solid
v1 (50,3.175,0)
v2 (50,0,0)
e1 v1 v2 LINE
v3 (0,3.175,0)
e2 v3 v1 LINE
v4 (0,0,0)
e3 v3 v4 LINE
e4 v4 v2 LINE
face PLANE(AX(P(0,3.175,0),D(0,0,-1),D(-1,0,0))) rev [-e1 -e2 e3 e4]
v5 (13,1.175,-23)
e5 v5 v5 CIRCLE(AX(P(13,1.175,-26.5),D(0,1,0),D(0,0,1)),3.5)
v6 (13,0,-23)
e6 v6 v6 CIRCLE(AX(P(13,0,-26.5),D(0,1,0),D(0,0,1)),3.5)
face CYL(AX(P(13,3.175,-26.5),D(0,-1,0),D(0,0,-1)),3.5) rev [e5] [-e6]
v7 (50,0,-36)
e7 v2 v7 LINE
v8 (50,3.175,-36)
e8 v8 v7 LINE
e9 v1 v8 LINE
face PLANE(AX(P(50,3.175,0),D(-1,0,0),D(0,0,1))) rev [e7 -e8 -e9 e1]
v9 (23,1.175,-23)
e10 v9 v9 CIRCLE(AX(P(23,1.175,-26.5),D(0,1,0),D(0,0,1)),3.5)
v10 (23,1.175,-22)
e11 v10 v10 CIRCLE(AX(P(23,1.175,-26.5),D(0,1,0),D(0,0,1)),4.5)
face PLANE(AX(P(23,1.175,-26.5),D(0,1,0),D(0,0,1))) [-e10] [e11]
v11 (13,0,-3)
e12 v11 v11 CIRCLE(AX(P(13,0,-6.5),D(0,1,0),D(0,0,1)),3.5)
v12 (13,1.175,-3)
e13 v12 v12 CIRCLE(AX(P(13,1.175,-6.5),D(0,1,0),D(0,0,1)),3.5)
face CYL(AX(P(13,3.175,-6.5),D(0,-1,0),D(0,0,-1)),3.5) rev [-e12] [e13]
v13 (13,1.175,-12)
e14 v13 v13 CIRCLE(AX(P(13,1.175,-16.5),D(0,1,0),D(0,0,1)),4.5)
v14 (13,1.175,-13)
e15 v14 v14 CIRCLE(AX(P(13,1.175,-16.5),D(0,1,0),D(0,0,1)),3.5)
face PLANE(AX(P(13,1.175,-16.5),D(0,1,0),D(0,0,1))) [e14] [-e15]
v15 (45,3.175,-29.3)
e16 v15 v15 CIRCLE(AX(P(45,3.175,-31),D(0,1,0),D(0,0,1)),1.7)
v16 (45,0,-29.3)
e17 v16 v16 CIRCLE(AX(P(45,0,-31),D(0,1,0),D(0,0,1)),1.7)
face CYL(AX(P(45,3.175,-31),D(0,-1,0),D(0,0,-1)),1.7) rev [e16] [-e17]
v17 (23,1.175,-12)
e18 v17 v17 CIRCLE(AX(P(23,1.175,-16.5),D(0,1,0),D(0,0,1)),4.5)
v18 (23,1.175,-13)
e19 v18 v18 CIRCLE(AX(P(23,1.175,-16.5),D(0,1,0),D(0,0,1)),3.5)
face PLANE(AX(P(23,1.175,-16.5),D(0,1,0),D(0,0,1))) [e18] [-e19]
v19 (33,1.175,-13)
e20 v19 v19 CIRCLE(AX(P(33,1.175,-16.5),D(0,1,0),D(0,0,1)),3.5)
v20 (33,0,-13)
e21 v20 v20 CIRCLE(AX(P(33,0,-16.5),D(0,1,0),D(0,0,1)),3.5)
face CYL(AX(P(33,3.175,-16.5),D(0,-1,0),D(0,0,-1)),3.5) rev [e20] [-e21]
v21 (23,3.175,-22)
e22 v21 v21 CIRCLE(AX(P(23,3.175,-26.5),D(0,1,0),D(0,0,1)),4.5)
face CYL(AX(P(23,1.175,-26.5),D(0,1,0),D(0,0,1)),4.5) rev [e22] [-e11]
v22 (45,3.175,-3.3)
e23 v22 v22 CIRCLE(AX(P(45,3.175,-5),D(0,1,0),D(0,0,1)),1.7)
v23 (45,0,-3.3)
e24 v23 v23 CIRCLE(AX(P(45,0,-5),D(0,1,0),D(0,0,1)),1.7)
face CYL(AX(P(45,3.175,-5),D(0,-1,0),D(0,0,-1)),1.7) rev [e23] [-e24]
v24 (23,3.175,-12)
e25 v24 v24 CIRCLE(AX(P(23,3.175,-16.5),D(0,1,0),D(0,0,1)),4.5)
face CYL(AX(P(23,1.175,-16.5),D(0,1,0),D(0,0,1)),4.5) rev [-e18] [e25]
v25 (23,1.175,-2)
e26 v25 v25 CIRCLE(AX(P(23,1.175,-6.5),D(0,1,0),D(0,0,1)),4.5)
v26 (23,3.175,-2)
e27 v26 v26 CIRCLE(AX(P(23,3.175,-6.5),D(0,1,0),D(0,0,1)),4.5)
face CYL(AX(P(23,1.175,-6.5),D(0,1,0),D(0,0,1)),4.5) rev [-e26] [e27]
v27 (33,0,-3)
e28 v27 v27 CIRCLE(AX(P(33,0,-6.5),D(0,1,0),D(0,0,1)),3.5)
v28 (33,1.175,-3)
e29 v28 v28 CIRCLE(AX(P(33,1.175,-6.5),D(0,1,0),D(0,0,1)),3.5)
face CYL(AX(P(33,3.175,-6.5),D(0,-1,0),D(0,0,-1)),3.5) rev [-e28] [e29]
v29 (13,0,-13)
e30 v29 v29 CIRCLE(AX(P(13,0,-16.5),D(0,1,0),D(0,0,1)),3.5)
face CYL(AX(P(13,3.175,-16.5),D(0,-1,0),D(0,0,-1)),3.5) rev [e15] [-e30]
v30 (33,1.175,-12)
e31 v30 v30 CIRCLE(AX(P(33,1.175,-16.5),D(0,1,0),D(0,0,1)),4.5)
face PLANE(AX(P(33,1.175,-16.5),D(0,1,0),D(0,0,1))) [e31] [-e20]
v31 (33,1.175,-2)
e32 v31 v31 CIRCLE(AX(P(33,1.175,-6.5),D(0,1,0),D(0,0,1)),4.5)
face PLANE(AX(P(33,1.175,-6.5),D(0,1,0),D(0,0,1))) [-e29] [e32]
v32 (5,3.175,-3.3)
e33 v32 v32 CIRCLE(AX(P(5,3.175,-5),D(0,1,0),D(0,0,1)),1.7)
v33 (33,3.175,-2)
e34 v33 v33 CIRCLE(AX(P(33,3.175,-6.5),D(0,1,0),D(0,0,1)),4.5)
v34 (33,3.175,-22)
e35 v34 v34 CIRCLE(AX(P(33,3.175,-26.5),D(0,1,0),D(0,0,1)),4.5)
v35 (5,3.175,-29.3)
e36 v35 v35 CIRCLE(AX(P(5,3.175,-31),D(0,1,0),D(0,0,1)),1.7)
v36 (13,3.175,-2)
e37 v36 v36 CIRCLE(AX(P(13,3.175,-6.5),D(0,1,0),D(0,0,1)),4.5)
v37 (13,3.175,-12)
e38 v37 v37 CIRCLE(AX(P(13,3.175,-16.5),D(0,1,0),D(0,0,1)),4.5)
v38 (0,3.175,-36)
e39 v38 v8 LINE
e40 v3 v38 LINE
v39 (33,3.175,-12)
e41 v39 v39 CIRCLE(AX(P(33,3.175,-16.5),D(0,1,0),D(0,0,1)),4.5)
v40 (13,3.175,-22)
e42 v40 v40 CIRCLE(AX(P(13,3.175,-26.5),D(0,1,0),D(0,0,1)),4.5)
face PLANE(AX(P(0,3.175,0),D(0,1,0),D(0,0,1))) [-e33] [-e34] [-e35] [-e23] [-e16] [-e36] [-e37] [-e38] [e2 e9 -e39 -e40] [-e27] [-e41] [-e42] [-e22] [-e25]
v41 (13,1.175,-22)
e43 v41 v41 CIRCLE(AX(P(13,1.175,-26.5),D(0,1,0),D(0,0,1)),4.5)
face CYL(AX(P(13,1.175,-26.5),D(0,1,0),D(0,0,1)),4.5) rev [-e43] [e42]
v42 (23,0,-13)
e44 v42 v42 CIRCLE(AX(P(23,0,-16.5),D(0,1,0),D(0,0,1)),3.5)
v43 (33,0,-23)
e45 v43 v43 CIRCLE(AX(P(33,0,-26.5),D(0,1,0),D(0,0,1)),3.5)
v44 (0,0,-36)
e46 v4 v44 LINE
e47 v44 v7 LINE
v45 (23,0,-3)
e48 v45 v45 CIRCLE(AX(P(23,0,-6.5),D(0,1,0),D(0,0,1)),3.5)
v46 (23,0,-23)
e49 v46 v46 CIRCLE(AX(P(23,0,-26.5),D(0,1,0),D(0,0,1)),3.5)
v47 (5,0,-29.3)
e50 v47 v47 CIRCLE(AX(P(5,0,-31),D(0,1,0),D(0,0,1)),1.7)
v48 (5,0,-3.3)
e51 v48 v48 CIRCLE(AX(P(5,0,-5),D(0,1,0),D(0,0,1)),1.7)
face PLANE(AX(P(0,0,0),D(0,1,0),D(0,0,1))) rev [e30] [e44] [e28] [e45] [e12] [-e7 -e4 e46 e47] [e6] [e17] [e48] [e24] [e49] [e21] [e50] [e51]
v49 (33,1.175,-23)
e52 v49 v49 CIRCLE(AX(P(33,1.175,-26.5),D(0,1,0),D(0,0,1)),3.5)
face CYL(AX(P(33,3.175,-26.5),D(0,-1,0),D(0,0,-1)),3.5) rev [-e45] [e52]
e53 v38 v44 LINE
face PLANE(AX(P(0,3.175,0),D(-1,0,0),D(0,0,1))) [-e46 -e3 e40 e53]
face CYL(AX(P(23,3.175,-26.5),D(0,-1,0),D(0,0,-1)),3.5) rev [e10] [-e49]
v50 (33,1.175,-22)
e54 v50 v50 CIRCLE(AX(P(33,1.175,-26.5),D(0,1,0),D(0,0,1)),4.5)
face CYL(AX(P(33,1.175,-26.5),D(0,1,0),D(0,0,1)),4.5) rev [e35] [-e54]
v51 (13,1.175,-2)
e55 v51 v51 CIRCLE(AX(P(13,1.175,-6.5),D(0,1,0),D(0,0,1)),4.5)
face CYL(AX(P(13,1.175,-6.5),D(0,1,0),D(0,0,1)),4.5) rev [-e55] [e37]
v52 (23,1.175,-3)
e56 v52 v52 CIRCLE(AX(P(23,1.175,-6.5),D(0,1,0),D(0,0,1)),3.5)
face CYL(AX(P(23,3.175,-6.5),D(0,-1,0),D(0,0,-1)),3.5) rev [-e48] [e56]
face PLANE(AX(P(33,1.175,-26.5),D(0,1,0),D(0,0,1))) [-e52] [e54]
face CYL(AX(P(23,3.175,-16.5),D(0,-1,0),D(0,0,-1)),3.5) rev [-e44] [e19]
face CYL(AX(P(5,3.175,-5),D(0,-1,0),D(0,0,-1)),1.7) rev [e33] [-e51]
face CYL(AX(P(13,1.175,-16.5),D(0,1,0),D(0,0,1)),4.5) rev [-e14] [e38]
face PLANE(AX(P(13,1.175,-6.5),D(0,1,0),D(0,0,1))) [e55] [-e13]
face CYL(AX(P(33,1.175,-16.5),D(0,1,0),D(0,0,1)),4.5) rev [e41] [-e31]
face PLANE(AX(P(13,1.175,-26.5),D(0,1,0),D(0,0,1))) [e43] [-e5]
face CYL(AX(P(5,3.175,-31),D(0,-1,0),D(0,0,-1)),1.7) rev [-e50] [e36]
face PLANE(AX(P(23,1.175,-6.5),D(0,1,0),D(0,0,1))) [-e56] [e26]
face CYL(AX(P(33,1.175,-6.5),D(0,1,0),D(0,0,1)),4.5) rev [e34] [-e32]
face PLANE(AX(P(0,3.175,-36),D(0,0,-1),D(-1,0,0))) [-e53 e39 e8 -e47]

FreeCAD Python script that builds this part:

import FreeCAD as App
import Part
import Sketcher
from FreeCAD import Vector

doc = App.newDocument("Part")
params = doc.addObject("Spreadsheet::Sheet", "Params")
for row, (alias, value) in enumerate([
    ("sketch1_diameter", "7 mm"),
    ("sketch1_diameter2", "3.4 mm"),
    ("sketch1_width", "50 mm"),
    ("sketch1_height", "36 mm"),
    ("pad1_length", "3.175 mm"),
    ("sketch2_diameter", "9 mm"),
    ("pocket1_length", "2 mm"),
], start=1):
    params.set(f"A{row}", alias)
    params.set(f"B{row}", "=" + value)
    params.setAlias(f"B{row}", alias)

body = doc.addObject("PartDesign::Body", "Body")

# Sketch on XZ plane
sketch1 = body.newObject("Sketcher::SketchObject", "Sketch")
sketch1.AttachmentSupport = (doc.getObject("XZ_Plane"), [""])
sketch1.MapMode = "FlatFace"
sketch1.addGeometry(Part.LineSegment(Vector(0, -36, 0), Vector(0, 0, 0)), False)
sketch1.addGeometry(Part.LineSegment(Vector(0, 0, 0), Vector(50, 0, 0)), False)
sketch1.addGeometry(Part.LineSegment(Vector(50, 0, 0), Vector(50, -36, 0)), False)
sketch1.addGeometry(Part.LineSegment(Vector(50, -36, 0), Vector(0, -36, 0)), False)
sketch1.addGeometry(Part.Circle(Vector(5, -5, 0), Vector(0, 0, 1), 1.7), False)
sketch1.addGeometry(Part.Circle(Vector(13, -6.5, 0), Vector(0, 0, 1), 3.5), False)
sketch1.addGeometry(Part.Circle(Vector(23, -6.5, 0), Vector(0, 0, 1), 3.5), False)
sketch1.addGeometry(Part.Circle(Vector(13, -16.5, 0), Vector(0, 0, 1), 3.5), False)
sketch1.addGeometry(Part.Circle(Vector(23, -16.5, 0), Vector(0, 0, 1), 3.5), False)
sketch1.addGeometry(Part.Circle(Vector(33, -6.5, 0), Vector(0, 0, 1), 3.5), False)
sketch1.addGeometry(Part.Circle(Vector(45, -5, 0), Vector(0, 0, 1), 1.7), False)
sketch1.addGeometry(Part.Circle(Vector(33, -16.5, 0), Vector(0, 0, 1), 3.5), False)
sketch1.addGeometry(Part.Circle(Vector(13, -26.5, 0), Vector(0, 0, 1), 3.5), False)
sketch1.addGeometry(Part.Circle(Vector(5, -31, 0), Vector(0, 0, 1), 1.7), False)
sketch1.addGeometry(Part.Circle(Vector(23, -26.5, 0), Vector(0, 0, 1), 3.5), False)
sketch1.addGeometry(Part.Circle(Vector(33, -26.5, 0), Vector(0, 0, 1), 3.5), False)
sketch1.addGeometry(Part.Circle(Vector(45, -31, 0), Vector(0, 0, 1), 1.7), False)
sketch1.addConstraint(Sketcher.Constraint("Coincident", 0, 2, 1, 1))
sketch1.addConstraint(Sketcher.Constraint("Coincident", 1, 2, 2, 1))
sketch1.addConstraint(Sketcher.Constraint("Coincident", 2, 2, 3, 1))
sketch1.addConstraint(Sketcher.Constraint("Coincident", 3, 2, 0, 1))
sketch1.addConstraint(Sketcher.Constraint("Vertical", 0))
sketch1.addConstraint(Sketcher.Constraint("Horizontal", 1))
sketch1.addConstraint(Sketcher.Constraint("Vertical", 2))
sketch1.addConstraint(Sketcher.Constraint("Horizontal", 3))
sketch1.addConstraint(Sketcher.Constraint("Coincident", 0, 2, -1, 1))
sketch1.addConstraint(Sketcher.Constraint("Equal", 5, 6))
sketch1.addConstraint(Sketcher.Constraint("Equal", 6, 7))
sketch1.addConstraint(Sketcher.Constraint("Equal", 7, 8))
sketch1.addConstraint(Sketcher.Constraint("Equal", 8, 9))
sketch1.addConstraint(Sketcher.Constraint("Equal", 4, 10))
sketch1.addConstraint(Sketcher.Constraint("Equal", 9, 11))
sketch1.addConstraint(Sketcher.Constraint("Equal", 11, 12))
sketch1.addConstraint(Sketcher.Constraint("Equal", 10, 13))
sketch1.addConstraint(Sketcher.Constraint("Equal", 12, 14))
sketch1.addConstraint(Sketcher.Constraint("Equal", 14, 15))
sketch1.addConstraint(Sketcher.Constraint("Equal", 13, 16))
sketch1.addConstraint(Sketcher.Constraint("Horizontal", 5, 3, 6, 3))
sketch1.addConstraint(Sketcher.Constraint("Horizontal", 7, 3, 8, 3))
sketch1.addConstraint(Sketcher.Constraint("Horizontal", 6, 3, 9, 3))
sketch1.addConstraint(Sketcher.Constraint("Horizontal", 4, 3, 10, 3))
sketch1.addConstraint(Sketcher.Constraint("Horizontal", 8, 3, 11, 3))
sketch1.addConstraint(Sketcher.Constraint("Horizontal", 12, 3, 14, 3))
sketch1.addConstraint(Sketcher.Constraint("Horizontal", 14, 3, 15, 3))
sketch1.addConstraint(Sketcher.Constraint("Horizontal", 13, 3, 16, 3))
sketch1.addConstraint(Sketcher.Constraint("Vertical", 5, 3, 7, 3))
sketch1.addConstraint(Sketcher.Constraint("Vertical", 6, 3, 8, 3))
sketch1.addConstraint(Sketcher.Constraint("Vertical", 9, 3, 11, 3))
sketch1.addConstraint(Sketcher.Constraint("Vertical", 7, 3, 12, 3))
sketch1.addConstraint(Sketcher.Constraint("Vertical", 4, 3, 13, 3))
sketch1.addConstraint(Sketcher.Constraint("Vertical", 8, 3, 14, 3))
sketch1.addConstraint(Sketcher.Constraint("Vertical", 11, 3, 15, 3))
sketch1.addConstraint(Sketcher.Constraint("Vertical", 10, 3, 16, 3))
sketch1.addConstraint(Sketcher.Constraint("Diameter", 5, 7.0))
sketch1.addConstraint(Sketcher.Constraint("Diameter", 4, 3.4))
sketch1.addConstraint(Sketcher.Constraint("DistanceX", 1, 1, 1, 2, 50.0))
sketch1.addConstraint(Sketcher.Constraint("DistanceY", 0, 1, 0, 2, 36.0))
sketch1.addConstraint(Sketcher.Constraint("DistanceX", -1, 1, 4, 3, 5.0))
sketch1.addConstraint(Sketcher.Constraint("DistanceY", 4, 3, -1, 1, 5.0))
sketch1.addConstraint(Sketcher.Constraint("DistanceX", -1, 1, 5, 3, 13.0))
sketch1.addConstraint(Sketcher.Constraint("DistanceX", -1, 1, 6, 3, 23.0))
sketch1.addConstraint(Sketcher.Constraint("DistanceX", -1, 1, 9, 3, 33.0))
sketch1.addConstraint(Sketcher.Constraint("DistanceX", -1, 1, 10, 3, 45.0))
sketch1.addConstraint(Sketcher.Constraint("DistanceY", 13, 3, -1, 1, 31.0))
sketch1.addConstraint(Sketcher.Constraint("DistanceY", 7, 3, 5, 3, 10.0))
sketch1.addConstraint(Sketcher.Constraint("DistanceY", 12, 3, 7, 3, 10.0))
sketch1.addConstraint(Sketcher.Constraint("DistanceY", 5, 3, -1, 1, 6.5))
sketch1.setExpression("Constraints[36]", "Params.sketch1_diameter")
sketch1.setExpression("Constraints[37]", "Params.sketch1_diameter2")
sketch1.setExpression("Constraints[38]", "Params.sketch1_width")
sketch1.setExpression("Constraints[39]", "Params.sketch1_height")
pad1 = body.newObject("PartDesign::Pad", "Pad")
pad1.Profile = sketch1
pad1.setExpression("Length", "Params.pad1_length")
pad1.Reversed = True

# Sketch on XZ plane
sketch2 = body.newObject("Sketcher::SketchObject", "Sketch001")
sketch2.AttachmentSupport = (doc.getObject("XZ_Plane"), [""])
sketch2.MapMode = "FlatFace"
sketch2.AttachmentOffset = App.Placement(Vector(0, 0, -3.175), App.Rotation())
sketch2.addGeometry(Part.Circle(Vector(13, -26.5, 0), Vector(0, 0, 1), 4.5), False)
sketch2.addGeometry(Part.Circle(Vector(23, -26.5, 0), Vector(0, 0, 1), 4.5), False)
sketch2.addGeometry(Part.Circle(Vector(33, -26.5, 0), Vector(0, 0, 1), 4.5), False)
sketch2.addGeometry(Part.Circle(Vector(23, -16.5, 0), Vector(0, 0, 1), 4.5), False)
sketch2.addGeometry(Part.Circle(Vector(33, -16.5, 0), Vector(0, 0, 1), 4.5), False)
sketch2.addGeometry(Part.Circle(Vector(23, -6.5, 0), Vector(0, 0, 1), 4.5), False)
sketch2.addGeometry(Part.Circle(Vector(33, -6.5, 0), Vector(0, 0, 1), 4.5), False)
sketch2.addGeometry(Part.Circle(Vector(13, -16.5, 0), Vector(0, 0, 1), 4.5), False)
sketch2.addGeometry(Part.Circle(Vector(13, -6.5, 0), Vector(0, 0, 1), 4.5), False)
sketch2.addConstraint(Sketcher.Constraint("Equal", 0, 1))
sketch2.addConstraint(Sketcher.Constraint("Equal", 1, 2))
sketch2.addConstraint(Sketcher.Constraint("Equal", 2, 3))
sketch2.addConstraint(Sketcher.Constraint("Equal", 3, 4))
sketch2.addConstraint(Sketcher.Constraint("Equal", 4, 5))
sketch2.addConstraint(Sketcher.Constraint("Equal", 5, 6))
sketch2.addConstraint(Sketcher.Constraint("Equal", 6, 7))
sketch2.addConstraint(Sketcher.Constraint("Equal", 7, 8))
sketch2.addConstraint(Sketcher.Constraint("Horizontal", 0, 3, 1, 3))
sketch2.addConstraint(Sketcher.Constraint("Horizontal", 1, 3, 2, 3))
sketch2.addConstraint(Sketcher.Constraint("Horizontal", 3, 3, 4, 3))
sketch2.addConstraint(Sketcher.Constraint("Horizontal", 5, 3, 6, 3))
sketch2.addConstraint(Sketcher.Constraint("Horizontal", 4, 3, 7, 3))
sketch2.addConstraint(Sketcher.Constraint("Horizontal", 6, 3, 8, 3))
sketch2.addConstraint(Sketcher.Constraint("Vertical", 1, 3, 3, 3))
sketch2.addConstraint(Sketcher.Constraint("Vertical", 2, 3, 4, 3))
sketch2.addConstraint(Sketcher.Constraint("Vertical", 3, 3, 5, 3))
sketch2.addConstraint(Sketcher.Constraint("Vertical", 4, 3, 6, 3))
sketch2.addConstraint(Sketcher.Constraint("Vertical", 0, 3, 7, 3))
sketch2.addConstraint(Sketcher.Constraint("Vertical", 7, 3, 8, 3))
sketch2.addConstraint(Sketcher.Constraint("Diameter", 0, 9.0))
sketch2.addConstraint(Sketcher.Constraint("DistanceX", -1, 1, 0, 3, 13.0))
sketch2.addConstraint(Sketcher.Constraint("DistanceX", -1, 1, 1, 3, 23.0))
sketch2.addConstraint(Sketcher.Constraint("DistanceX", -1, 1, 2, 3, 33.0))
sketch2.addConstraint(Sketcher.Constraint("DistanceY", 1, 3, 3, 3, 10.0))
sketch2.addConstraint(Sketcher.Constraint("DistanceY", 3, 3, 5, 3, 10.0))
sketch2.addConstraint(Sketcher.Constraint("DistanceY", 0, 3, -1, 1, 26.5))
sketch2.setExpression("Constraints[20]", "Params.sketch2_diameter")
pocket1 = body.newObject("PartDesign::Pocket", "Pocket")
pocket1.Profile = sketch2
pocket1.setExpression("Length", "Params.pocket1_length")
pocket1.Reversed = True

doc.recompute()
